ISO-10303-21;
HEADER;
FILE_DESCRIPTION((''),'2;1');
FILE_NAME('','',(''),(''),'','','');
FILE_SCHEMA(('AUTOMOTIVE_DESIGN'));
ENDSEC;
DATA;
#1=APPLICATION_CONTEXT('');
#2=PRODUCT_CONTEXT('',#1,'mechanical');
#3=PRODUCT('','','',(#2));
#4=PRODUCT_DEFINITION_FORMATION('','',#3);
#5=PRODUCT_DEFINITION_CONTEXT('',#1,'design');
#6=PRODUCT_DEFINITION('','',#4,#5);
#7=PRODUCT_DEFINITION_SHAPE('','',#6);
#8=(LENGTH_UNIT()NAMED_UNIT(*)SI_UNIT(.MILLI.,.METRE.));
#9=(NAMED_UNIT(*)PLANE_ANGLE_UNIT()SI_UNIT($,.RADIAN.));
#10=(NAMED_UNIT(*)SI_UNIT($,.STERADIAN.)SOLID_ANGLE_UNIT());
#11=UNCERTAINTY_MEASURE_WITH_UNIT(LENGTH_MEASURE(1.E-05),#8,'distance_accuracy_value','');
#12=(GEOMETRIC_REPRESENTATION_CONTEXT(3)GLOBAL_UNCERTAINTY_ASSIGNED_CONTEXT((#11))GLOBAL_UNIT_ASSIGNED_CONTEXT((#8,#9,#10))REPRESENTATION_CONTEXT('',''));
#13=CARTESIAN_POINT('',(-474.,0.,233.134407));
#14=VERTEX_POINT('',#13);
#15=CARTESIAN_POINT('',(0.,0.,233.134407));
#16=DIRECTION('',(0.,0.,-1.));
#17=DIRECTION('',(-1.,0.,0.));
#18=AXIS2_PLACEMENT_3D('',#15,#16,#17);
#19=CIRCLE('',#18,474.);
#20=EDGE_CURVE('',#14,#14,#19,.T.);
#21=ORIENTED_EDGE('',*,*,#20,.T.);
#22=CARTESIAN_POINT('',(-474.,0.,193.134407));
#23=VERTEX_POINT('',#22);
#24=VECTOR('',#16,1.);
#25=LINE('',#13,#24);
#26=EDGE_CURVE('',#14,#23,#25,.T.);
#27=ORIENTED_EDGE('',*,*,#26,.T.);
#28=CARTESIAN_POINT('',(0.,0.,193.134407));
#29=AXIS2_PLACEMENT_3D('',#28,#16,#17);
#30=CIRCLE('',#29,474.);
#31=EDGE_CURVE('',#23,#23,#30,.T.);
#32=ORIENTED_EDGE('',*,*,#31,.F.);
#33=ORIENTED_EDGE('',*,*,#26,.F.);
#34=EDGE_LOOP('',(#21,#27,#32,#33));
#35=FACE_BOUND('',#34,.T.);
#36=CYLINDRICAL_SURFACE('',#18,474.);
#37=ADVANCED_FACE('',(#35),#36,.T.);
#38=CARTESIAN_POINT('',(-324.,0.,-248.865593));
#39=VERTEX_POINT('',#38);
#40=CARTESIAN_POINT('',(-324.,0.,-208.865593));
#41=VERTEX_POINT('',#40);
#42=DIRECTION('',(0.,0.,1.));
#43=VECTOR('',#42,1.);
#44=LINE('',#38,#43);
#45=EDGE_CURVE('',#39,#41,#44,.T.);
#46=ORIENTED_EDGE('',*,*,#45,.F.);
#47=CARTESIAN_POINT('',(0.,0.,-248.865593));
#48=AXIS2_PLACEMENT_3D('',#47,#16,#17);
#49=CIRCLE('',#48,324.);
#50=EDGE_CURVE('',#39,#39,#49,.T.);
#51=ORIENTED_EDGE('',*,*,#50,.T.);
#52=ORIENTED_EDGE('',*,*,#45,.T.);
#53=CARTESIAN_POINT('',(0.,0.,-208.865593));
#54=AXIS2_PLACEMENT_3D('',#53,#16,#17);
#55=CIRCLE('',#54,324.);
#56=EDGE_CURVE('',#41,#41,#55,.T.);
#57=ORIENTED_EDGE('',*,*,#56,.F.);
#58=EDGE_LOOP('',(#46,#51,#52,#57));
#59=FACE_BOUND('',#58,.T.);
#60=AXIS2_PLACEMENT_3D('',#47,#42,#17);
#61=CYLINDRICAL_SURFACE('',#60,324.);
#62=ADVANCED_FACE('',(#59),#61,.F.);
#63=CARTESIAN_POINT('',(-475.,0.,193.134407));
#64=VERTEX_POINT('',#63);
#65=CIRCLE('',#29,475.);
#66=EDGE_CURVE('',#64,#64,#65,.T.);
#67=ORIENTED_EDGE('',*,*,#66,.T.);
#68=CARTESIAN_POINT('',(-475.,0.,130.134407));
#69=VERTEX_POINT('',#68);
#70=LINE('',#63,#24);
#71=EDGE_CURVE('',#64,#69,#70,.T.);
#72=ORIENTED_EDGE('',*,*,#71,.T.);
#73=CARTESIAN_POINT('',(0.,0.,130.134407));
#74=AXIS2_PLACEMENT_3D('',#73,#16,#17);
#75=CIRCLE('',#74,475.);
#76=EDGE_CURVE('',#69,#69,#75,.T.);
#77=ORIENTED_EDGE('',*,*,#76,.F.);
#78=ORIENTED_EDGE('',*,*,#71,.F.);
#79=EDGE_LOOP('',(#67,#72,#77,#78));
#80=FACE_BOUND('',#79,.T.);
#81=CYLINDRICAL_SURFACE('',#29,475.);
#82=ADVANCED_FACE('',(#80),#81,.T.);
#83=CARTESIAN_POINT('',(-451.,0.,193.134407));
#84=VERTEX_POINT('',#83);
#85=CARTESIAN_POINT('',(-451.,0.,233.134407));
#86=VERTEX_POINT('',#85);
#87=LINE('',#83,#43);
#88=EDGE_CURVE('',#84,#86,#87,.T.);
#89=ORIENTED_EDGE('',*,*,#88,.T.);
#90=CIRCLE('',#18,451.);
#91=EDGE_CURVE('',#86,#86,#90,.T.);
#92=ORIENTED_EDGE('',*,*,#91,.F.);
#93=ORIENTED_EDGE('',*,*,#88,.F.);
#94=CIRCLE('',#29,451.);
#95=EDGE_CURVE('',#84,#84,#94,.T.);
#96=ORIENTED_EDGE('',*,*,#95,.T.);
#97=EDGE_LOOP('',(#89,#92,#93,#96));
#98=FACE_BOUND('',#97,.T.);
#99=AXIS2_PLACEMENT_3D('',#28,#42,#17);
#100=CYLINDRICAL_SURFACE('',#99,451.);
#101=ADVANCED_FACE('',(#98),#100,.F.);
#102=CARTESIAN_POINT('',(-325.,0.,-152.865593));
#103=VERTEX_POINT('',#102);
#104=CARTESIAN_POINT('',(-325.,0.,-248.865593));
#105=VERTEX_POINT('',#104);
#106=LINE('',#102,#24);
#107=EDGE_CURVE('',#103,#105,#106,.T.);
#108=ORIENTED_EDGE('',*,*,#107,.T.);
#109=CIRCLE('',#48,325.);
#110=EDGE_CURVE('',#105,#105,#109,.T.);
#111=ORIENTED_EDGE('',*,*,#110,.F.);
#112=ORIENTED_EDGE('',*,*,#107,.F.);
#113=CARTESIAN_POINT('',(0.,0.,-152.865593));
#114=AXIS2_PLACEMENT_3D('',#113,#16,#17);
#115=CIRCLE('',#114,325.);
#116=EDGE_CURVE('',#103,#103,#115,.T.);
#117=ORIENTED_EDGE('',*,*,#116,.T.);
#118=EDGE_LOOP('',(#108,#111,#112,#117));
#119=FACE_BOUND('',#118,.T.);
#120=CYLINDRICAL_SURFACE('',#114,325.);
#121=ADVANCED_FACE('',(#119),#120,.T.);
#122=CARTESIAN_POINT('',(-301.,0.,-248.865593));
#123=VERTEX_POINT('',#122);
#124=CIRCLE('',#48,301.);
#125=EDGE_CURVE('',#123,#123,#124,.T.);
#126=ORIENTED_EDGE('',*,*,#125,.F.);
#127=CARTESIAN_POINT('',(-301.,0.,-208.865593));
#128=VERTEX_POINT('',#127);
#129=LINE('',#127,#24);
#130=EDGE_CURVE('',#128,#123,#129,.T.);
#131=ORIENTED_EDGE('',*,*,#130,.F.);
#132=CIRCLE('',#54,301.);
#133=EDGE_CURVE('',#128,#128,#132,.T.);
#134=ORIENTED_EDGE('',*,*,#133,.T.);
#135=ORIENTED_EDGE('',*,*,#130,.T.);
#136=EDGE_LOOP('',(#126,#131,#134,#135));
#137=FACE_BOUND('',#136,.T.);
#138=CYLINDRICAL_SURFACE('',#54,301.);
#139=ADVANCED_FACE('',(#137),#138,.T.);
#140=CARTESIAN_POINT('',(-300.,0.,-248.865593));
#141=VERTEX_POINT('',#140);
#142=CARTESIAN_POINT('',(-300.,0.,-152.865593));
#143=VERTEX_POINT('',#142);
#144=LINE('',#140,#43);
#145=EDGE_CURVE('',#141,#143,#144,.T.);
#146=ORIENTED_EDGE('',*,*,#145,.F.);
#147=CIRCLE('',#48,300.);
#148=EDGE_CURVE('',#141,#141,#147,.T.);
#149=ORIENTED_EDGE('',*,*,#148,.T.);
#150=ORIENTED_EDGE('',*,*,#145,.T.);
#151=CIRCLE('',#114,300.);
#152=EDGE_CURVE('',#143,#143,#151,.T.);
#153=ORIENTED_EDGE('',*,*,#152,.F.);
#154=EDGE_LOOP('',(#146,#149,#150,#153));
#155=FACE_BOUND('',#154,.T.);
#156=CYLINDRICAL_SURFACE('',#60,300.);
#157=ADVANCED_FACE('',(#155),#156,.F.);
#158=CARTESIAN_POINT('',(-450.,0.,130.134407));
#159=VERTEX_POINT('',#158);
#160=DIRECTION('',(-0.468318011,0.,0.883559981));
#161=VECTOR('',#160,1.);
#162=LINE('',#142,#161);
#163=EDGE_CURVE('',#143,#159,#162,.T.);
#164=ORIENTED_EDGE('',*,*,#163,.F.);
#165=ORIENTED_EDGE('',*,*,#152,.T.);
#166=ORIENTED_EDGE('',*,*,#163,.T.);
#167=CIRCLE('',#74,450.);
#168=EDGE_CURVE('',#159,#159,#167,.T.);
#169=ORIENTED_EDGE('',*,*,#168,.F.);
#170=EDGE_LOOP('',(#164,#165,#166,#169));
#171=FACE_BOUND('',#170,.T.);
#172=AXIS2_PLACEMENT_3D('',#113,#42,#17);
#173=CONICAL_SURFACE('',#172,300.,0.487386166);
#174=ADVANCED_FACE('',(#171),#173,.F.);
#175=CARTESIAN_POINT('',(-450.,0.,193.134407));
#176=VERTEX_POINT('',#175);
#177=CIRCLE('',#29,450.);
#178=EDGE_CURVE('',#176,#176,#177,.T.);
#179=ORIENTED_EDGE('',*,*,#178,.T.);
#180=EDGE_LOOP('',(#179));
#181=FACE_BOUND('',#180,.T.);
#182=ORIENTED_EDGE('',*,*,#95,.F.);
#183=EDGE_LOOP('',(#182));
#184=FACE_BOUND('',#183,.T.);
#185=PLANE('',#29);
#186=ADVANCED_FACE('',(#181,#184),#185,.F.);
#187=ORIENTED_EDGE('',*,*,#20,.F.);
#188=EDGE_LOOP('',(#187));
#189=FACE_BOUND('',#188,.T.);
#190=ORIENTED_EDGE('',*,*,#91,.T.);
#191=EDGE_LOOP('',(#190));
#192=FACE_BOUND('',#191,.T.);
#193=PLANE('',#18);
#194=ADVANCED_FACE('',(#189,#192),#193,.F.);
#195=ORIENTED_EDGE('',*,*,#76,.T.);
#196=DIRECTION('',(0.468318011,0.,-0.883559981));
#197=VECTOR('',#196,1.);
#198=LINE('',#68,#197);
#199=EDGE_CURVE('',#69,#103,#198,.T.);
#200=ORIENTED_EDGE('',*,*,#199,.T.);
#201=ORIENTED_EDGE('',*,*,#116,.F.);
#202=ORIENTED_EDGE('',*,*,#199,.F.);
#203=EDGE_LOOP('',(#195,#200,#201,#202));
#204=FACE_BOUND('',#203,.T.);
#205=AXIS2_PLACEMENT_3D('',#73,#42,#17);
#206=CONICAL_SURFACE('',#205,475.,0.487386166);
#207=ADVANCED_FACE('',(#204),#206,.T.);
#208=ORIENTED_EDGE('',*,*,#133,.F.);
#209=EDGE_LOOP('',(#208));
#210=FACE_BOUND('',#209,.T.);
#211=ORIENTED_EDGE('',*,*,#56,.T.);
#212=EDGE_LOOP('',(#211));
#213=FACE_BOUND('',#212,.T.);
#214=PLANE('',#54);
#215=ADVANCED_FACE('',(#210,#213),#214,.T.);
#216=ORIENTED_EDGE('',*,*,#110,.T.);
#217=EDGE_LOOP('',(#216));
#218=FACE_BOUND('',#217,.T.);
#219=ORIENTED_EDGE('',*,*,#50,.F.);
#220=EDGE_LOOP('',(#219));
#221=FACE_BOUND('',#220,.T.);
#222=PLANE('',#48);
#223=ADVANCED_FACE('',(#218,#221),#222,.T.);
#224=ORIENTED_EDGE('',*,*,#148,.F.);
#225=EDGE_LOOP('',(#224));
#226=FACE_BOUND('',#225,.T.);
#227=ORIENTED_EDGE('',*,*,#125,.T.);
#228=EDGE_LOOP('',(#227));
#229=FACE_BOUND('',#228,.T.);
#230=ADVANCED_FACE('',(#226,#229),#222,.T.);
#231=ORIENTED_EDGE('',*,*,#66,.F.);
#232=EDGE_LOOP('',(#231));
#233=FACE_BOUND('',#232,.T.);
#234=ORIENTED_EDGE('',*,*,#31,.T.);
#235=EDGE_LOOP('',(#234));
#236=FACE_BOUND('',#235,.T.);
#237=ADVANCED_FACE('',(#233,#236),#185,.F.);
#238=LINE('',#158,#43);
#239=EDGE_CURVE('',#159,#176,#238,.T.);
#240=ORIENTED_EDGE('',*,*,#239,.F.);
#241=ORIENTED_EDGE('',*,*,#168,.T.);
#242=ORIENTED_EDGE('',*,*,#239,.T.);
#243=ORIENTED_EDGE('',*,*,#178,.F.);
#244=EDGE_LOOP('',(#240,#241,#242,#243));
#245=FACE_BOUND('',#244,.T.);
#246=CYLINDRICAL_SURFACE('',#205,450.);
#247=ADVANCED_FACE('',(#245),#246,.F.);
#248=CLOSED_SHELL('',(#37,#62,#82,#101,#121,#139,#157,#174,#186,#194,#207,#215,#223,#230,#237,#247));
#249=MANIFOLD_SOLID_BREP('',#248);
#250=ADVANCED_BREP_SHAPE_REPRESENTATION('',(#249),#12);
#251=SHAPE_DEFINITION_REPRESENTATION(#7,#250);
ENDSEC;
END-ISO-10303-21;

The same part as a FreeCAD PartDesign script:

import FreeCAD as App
import Part
import Sketcher

V = App.Vector
Q = App.Units.Quantity

doc = App.newDocument("Part")
body = doc.addObject("PartDesign::Body", "Body")

# Sketch on XZ plane
sketch1 = doc.addObject("Sketcher::SketchObject", "Sketch")
body.addObject(sketch1)
sketch1.AttachmentSupport = (doc.XZ_Plane, [""])
sketch1.MapMode = "FlatFace"
sketch1.addGeometry([
    Part.LineSegment(V(-301, -248.9, 0), V(-300, -248.9, 0)),  # 0
    Part.LineSegment(V(-300, -248.9, 0), V(-300, -152.9, 0)),  # 1
    Part.LineSegment(V(-300, -152.9, 0), V(-450, 130.1, 0)),  # 2
    Part.LineSegment(V(-450, 130.1, 0), V(-450, 193.1, 0)),  # 3
    Part.LineSegment(V(-450, 193.1, 0), V(-451, 193.1, 0)),  # 4
    Part.LineSegment(V(-451, 193.1, 0), V(-451, 233.1, 0)),  # 5
    Part.LineSegment(V(-451, 233.1, 0), V(-474, 233.1, 0)),  # 6
    Part.LineSegment(V(-474, 233.1, 0), V(-474, 193.1, 0)),  # 7
    Part.LineSegment(V(-474, 193.1, 0), V(-475, 193.1, 0)),  # 8
    Part.LineSegment(V(-475, 193.1, 0), V(-475, 130.1, 0)),  # 9
    Part.LineSegment(V(-475, 130.1, 0), V(-325, -152.9, 0)),  # 10
    Part.LineSegment(V(-325, -152.9, 0), V(-325, -248.9, 0)),  # 11
    Part.LineSegment(V(-325, -248.9, 0), V(-324, -248.9, 0)),  # 12
    Part.LineSegment(V(-324, -248.9, 0), V(-324, -208.9, 0)),  # 13
    Part.LineSegment(V(-324, -208.9, 0), V(-301, -208.9, 0)),  # 14
    Part.LineSegment(V(-301, -208.9, 0), V(-301, -248.9, 0)),  # 15
], False)
sketch1.addConstraint([
    Sketcher.Constraint("Coincident", 0, 2, 1, 1),
    Sketcher.Constraint("Coincident", 1, 2, 2, 1),
    Sketcher.Constraint("Coincident", 2, 2, 3, 1),
    Sketcher.Constraint("Coincident", 3, 2, 4, 1),
    Sketcher.Constraint("Coincident", 4, 2, 5, 1),
    Sketcher.Constraint("Coincident", 5, 2, 6, 1),
    Sketcher.Constraint("Coincident", 6, 2, 7, 1),
    Sketcher.Constraint("Coincident", 7, 2, 8, 1),
    Sketcher.Constraint("Coincident", 8, 2, 9, 1),
    Sketcher.Constraint("Coincident", 9, 2, 10, 1),
    Sketcher.Constraint("Coincident", 10, 2, 11, 1),
    Sketcher.Constraint("Coincident", 11, 2, 12, 1),
    Sketcher.Constraint("Coincident", 12, 2, 13, 1),
    Sketcher.Constraint("Coincident", 13, 2, 14, 1),
    Sketcher.Constraint("Coincident", 14, 2, 15, 1),
    Sketcher.Constraint("Coincident", 15, 2, 0, 1),
    Sketcher.Constraint("Horizontal", 0),
    Sketcher.Constraint("Vertical", 1),
    Sketcher.Constraint("Vertical", 3),
    Sketcher.Constraint("Horizontal", 4),
    Sketcher.Constraint("Vertical", 5),
    Sketcher.Constraint("Horizontal", 6),
    Sketcher.Constraint("Vertical", 7),
    Sketcher.Constraint("Horizontal", 8),
    Sketcher.Constraint("Vertical", 9),
    Sketcher.Constraint("Vertical", 11),
    Sketcher.Constraint("Horizontal", 12),
    Sketcher.Constraint("Vertical", 13),
    Sketcher.Constraint("Horizontal", 14),
    Sketcher.Constraint("Vertical", 15),
    Sketcher.Constraint("Parallel", 2, 10),
    Sketcher.Constraint("Horizontal", 4, 2, 7, 2),
    Sketcher.Constraint("Horizontal", 2, 2, 9, 2),
    Sketcher.Constraint("Horizontal", 1, 2, 10, 2),
    Sketcher.Constraint("Horizontal", 0, 2, 11, 2),
    Sketcher.Constraint("Equal", 0, 4),
    Sketcher.Constraint("Equal", 4, 8),
    Sketcher.Constraint("Equal", 8, 12),
    Sketcher.Constraint("Equal", 7, 13),
    Sketcher.Constraint("DistanceX", 0, 1, 0, 2, Q("1 mm")),
    Sketcher.Constraint("DistanceX", 6, 2, 6, 1, Q("23 mm")),
    Sketcher.Constraint("DistanceY", 1, 1, 1, 2, Q("96 mm")),
    Sketcher.Constraint("DistanceY", 3, 1, 3, 2, Q("63 mm")),
    Sketcher.Constraint("DistanceY", 5, 1, 5, 2, Q("40 mm")),
    Sketcher.Constraint("DistanceX", 0, 2, -1, 1, Q("300 mm")),
    Sketcher.Constraint("DistanceX", 2, 2, -1, 1, Q("450 mm")),
    Sketcher.Constraint("DistanceY", 1, 2, 2, 2, Q("283 mm")),
    Sketcher.Constraint("DistanceY", 0, 2, -1, 1, Q("248.865593 mm")),
])
revolution = doc.addObject("PartDesign::Revolution", "Revolution")
body.addObject(revolution)
revolution.Profile = sketch1
revolution.ReferenceAxis = (sketch1, ["V_Axis"])
revolution.Angle = 360

doc.recompute()
